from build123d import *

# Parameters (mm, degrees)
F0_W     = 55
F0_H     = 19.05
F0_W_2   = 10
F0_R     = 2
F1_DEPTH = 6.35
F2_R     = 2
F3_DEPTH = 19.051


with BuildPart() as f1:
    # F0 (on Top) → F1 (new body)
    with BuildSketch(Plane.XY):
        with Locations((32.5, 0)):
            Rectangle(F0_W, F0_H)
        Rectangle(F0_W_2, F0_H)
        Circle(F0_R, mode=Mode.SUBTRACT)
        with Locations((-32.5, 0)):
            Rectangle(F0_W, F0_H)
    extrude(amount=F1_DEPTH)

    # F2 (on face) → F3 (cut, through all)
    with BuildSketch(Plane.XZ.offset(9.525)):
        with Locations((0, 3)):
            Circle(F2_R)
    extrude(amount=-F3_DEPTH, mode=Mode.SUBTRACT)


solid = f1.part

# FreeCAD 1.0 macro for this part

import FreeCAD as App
import Part
import Sketcher
from FreeCAD import Vector
Q = App.Units.Quantity


def add_polygon(sketch, points):
    """Adds a closed chain of lines whose ends are joined by coincident constraints."""
    first, n = sketch.GeometryCount, len(points)
    for a, b in zip(points, points[1:] + points[:1]):
        sketch.addGeometry(Part.LineSegment(App.Vector(*a, 0), App.Vector(*b, 0)), False)
    for i in range(n):
        sketch.addConstraint(Sketcher.Constraint("Coincident", first + i, 2, first + (i + 1) % n, 1))

doc = App.newDocument("Part")
body = doc.addObject("PartDesign::Body", "Body")

sketch1 = body.newObject("Sketcher::SketchObject", "Sketch")
sketch1.AttachmentSupport = (doc.getObject("XY_Plane"), [""])
sketch1.MapMode = "FlatFace"
add_polygon(sketch1, [(60, -9.5), (60, 9.5), (-60, 9.5), (-60, -9.5)])
sketch1.addGeometry(Part.Circle(Vector(0, 0, 0), Vector(0, 0, 1), 2), False)
sketch1.addConstraint([
    Sketcher.Constraint("Vertical", 0),
    Sketcher.Constraint("Horizontal", 1),
    Sketcher.Constraint("Vertical", 2),
    Sketcher.Constraint("Horizontal", 3),
    Sketcher.Constraint("Coincident", 4, 3, -1, 1),
    Sketcher.Constraint("Symmetric", 0, 2, 2, 2, -1, 1),
    Sketcher.Constraint("Diameter", 4, Q("4 mm")),
    Sketcher.Constraint("DistanceX", 1, 2, 1, 1, Q("120 mm")),
    Sketcher.Constraint("DistanceY", 0, 1, 0, 2, Q("19.05 mm")),
])
pad1 = body.newObject("PartDesign::Pad", "Pad")
pad1.Profile = sketch1
pad1.Length = 6.35

sketch2 = body.newObject("Sketcher::SketchObject", "Sketch001")
sketch2.AttachmentSupport = (doc.getObject("XZ_Plane"), [""])
sketch2.MapMode = "FlatFace"
sketch2.AttachmentOffset = App.Placement(Vector(0, 0, 9.525), App.Rotation())
sketch2.addGeometry(Part.Circle(Vector(0, 3, 0), Vector(0, 0, 1), 2), False)
sketch2.addConstraint([
    Sketcher.Constraint("PointOnObject", 0, 3, -2),
    Sketcher.Constraint("Diameter", 0, Q("4 mm")),
    Sketcher.Constraint("DistanceY", -1, 1, 0, 3, Q("3 mm")),
])
pocket1 = body.newObject("PartDesign::Pocket", "Pocket")
pocket1.Profile = sketch2
pocket1.Type = "ThroughAll"

doc.recompute()
